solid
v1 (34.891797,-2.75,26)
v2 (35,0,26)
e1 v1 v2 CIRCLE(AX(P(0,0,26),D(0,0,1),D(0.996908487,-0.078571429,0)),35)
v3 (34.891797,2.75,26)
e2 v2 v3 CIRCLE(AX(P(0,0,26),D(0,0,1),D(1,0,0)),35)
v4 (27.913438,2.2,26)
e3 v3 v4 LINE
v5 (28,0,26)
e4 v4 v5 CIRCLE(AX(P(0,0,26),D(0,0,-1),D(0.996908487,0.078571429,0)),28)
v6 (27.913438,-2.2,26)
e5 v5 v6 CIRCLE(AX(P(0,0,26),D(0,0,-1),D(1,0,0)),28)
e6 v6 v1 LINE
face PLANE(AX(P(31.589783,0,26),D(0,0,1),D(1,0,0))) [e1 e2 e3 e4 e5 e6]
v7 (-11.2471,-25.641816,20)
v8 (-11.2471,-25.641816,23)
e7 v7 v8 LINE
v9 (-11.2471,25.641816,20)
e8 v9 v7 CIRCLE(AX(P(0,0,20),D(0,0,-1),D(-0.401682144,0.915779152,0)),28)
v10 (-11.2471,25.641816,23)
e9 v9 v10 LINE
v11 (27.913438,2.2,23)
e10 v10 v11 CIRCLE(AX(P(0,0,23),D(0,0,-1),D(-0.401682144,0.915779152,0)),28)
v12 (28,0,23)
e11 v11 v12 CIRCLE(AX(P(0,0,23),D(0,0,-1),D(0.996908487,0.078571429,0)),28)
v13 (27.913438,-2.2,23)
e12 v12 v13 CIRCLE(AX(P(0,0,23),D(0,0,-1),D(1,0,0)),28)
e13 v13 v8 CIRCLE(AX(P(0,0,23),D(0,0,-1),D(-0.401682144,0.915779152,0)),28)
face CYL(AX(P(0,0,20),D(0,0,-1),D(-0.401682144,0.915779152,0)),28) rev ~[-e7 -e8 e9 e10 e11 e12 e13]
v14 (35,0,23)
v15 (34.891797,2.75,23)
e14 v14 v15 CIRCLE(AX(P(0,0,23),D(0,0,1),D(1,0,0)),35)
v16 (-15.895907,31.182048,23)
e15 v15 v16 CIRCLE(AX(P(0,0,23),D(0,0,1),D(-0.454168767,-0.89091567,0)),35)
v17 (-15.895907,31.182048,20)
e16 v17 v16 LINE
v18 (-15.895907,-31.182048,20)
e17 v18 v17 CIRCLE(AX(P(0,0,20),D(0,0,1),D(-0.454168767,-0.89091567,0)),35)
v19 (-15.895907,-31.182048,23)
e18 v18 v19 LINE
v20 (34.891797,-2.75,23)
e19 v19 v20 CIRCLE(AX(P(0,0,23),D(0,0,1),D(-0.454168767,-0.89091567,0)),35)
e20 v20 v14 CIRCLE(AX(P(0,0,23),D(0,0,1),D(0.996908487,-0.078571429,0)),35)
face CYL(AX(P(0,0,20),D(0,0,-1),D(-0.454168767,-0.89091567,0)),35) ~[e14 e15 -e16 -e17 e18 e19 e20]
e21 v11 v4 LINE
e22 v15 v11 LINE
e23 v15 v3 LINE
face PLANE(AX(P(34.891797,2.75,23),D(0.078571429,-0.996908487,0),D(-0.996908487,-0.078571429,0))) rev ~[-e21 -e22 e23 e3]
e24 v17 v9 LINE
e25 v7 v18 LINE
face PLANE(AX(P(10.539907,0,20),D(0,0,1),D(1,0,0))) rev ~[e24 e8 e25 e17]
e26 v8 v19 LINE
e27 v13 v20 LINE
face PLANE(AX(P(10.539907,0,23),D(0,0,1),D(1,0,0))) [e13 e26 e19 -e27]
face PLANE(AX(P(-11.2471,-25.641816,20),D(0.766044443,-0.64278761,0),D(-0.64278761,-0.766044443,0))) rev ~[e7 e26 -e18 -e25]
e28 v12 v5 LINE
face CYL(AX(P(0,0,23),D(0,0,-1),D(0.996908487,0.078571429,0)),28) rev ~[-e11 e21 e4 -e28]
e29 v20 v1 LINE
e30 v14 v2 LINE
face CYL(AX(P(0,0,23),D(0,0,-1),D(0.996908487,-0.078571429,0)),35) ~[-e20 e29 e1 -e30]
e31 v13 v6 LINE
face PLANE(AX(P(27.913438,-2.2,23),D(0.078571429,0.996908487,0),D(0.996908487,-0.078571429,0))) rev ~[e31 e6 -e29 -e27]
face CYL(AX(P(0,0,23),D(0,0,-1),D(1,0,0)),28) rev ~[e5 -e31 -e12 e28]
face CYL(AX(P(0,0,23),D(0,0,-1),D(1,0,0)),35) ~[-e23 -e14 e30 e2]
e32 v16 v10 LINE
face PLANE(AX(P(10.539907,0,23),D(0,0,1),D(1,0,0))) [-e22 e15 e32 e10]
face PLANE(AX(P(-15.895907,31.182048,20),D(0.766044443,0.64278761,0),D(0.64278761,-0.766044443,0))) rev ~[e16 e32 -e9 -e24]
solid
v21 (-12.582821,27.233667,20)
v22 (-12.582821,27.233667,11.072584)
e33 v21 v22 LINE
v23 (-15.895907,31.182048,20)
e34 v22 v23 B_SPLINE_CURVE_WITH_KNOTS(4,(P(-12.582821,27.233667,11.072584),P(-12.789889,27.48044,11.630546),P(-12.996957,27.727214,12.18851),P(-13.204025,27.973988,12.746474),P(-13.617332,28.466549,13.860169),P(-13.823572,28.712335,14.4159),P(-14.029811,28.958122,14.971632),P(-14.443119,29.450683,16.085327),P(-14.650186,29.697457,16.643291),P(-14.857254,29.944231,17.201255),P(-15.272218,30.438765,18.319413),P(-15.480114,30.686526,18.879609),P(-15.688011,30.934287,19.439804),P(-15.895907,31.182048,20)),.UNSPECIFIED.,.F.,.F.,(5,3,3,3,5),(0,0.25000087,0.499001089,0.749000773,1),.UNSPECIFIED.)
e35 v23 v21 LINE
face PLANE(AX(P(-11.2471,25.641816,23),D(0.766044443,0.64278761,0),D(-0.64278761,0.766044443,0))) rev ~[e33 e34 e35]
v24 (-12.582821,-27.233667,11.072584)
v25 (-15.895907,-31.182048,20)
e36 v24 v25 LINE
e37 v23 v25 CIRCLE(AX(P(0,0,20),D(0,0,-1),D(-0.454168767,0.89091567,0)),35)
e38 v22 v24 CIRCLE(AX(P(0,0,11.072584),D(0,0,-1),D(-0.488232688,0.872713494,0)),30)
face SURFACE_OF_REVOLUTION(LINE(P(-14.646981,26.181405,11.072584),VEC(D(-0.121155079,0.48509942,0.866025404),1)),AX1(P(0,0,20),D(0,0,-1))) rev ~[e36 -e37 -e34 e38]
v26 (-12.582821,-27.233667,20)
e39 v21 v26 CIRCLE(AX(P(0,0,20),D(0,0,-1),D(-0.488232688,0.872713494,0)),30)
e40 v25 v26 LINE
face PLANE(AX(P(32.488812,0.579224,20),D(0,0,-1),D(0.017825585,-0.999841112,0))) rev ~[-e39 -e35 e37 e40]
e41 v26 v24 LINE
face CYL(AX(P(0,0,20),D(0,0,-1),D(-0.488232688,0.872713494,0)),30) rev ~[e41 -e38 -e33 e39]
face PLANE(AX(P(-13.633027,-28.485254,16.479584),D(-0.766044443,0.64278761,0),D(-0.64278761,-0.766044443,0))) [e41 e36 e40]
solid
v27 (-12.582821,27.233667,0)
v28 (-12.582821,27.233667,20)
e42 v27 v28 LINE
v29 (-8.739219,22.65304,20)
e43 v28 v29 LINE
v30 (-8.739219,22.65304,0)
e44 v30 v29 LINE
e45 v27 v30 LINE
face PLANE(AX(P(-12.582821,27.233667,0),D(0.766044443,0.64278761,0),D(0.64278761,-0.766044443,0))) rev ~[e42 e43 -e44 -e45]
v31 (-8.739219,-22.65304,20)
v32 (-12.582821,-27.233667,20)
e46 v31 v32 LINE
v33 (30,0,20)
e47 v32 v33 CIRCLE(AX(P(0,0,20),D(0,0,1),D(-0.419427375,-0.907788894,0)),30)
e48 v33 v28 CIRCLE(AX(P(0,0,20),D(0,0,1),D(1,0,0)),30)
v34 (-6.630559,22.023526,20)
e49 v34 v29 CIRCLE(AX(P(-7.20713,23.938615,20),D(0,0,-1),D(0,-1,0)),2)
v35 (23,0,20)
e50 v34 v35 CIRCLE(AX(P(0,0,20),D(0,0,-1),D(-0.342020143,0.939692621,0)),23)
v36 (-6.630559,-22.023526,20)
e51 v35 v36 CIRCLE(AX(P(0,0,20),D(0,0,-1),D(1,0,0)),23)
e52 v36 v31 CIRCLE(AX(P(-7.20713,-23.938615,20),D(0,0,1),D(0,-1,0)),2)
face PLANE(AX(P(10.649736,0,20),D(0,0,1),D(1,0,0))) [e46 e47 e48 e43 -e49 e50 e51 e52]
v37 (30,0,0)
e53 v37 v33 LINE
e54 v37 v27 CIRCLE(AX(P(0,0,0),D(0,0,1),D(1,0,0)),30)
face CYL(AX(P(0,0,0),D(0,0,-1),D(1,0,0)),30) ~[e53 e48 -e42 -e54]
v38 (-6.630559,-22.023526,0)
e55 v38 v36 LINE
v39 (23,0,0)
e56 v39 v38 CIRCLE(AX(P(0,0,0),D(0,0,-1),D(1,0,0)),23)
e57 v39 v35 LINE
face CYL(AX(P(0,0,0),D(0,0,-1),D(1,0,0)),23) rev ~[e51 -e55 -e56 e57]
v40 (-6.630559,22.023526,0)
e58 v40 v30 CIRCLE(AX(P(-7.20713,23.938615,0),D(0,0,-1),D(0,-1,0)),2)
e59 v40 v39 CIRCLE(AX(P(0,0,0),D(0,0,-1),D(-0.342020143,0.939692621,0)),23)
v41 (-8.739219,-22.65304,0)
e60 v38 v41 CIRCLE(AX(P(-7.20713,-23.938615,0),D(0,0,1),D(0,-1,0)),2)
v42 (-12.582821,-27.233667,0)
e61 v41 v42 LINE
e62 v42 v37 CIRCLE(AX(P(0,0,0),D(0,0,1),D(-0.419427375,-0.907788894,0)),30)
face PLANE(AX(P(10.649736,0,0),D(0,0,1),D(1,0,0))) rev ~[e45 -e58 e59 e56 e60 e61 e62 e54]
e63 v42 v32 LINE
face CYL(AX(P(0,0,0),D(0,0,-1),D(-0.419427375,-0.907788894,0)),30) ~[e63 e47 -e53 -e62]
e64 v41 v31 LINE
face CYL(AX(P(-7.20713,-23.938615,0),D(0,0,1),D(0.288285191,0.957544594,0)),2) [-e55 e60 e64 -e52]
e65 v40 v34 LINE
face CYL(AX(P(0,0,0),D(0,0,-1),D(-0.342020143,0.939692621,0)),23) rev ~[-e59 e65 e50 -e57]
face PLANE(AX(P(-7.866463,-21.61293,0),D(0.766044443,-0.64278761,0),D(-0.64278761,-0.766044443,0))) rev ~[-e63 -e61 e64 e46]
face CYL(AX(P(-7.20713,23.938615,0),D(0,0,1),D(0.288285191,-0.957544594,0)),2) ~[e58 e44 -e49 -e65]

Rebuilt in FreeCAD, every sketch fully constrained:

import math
import FreeCAD as App
import Part
import Sketcher
from FreeCAD import Vector
Q = App.Units.Quantity


def edges_at(feature, points):
    """Names of the edges that pass closest to the given points."""
    edges = feature.Shape.Edges
    near = lambda p: min(range(len(edges)), key=lambda i: edges[i].distToShape(Part.Vertex(*p))[0])
    return sorted({f"Edge{near(p) + 1}" for p in points})

doc = App.newDocument("Part")
body = doc.addObject("PartDesign::Body", "Body")

# Sketch on XY plane
sketch1 = body.newObject("Sketcher::SketchObject", "Sketch")
sketch1.AttachmentSupport = (doc.getObject("XY_Plane"), [""])
sketch1.MapMode = "FlatFace"
sketch1.addGeometry([
    Part.ArcOfCircle(Part.Circle(Vector(0, 0, 0), Vector(0, 0, 1), 23), math.radians(0), math.radians(110)),  # 0
    Part.ArcOfCircle(Part.Circle(Vector(0, 0, 0), Vector(0, 0, 1), 23), math.radians(-110), math.radians(0)),  # 1
    Part.LineSegment(Vector(-8, -22, 0), Vector(-13, -27, 0)),  # 2
    Part.ArcOfCircle(Part.Circle(Vector(0, 0, 0), Vector(0, 0, 1), 30), math.radians(-115), math.radians(0)),  # 3
    Part.ArcOfCircle(Part.Circle(Vector(0, 0, 0), Vector(0, 0, 1), 30), math.radians(0), math.radians(115)),  # 4
    Part.LineSegment(Vector(-13, 27, 0), Vector(-8, 22, 0)),  # 5
], False)
sketch1.addConstraint([
    Sketcher.Constraint("Tangent", 0, 1, 1, 2),
    Sketcher.Constraint("Coincident", 1, 1, 2, 1),
    Sketcher.Constraint("Coincident", 2, 2, 3, 1),
    Sketcher.Constraint("Tangent", 3, 2, 4, 1),
    Sketcher.Constraint("Coincident", 4, 2, 5, 1),
    Sketcher.Constraint("Coincident", 5, 2, 0, 2),
    Sketcher.Constraint("Coincident", 0, 3, -1, 1),
    Sketcher.Constraint("Coincident", 3, 3, -1, 1),
    Sketcher.Constraint("Equal", 0, 1),
    Sketcher.Constraint("Equal", 3, 4),
    Sketcher.Constraint("PointOnObject", 0, 1, -1),
    Sketcher.Constraint("PointOnObject", 3, 2, -1),
    Sketcher.Constraint("Vertical", 2, 2, 4, 2),
    Sketcher.Constraint("Vertical", 1, 1, 5, 2),
    Sketcher.Constraint("Radius", 0, 23.0),
    Sketcher.Constraint("Radius", 3, 30.0),
    Sketcher.Constraint("Angle", 2, Q("-130 deg")),
    Sketcher.Constraint("Distance", 2, 7.33735),
])
pad1 = body.newObject("PartDesign::Pad", "Pad")
pad1.Profile = sketch1
pad1.Length = 20
doc.recompute()

fillet = body.newObject("PartDesign::Fillet", "Fillet")
fillet.Base = (pad1, edges_at(pad1, [(-7.866, 21.613, 10)]))
fillet.Radius = 2
doc.recompute()

fillet2 = body.newObject("PartDesign::Fillet", "Fillet001")
fillet2.Base = (fillet, edges_at(fillet, [(-7.866, -21.613, 10)]))
fillet2.Radius = 2
body2 = doc.addObject("PartDesign::Body", "Body001")

# Sketch on XY plane
sketch2 = body2.newObject("Sketcher::SketchObject", "Sketch001")
sketch2.AttachmentSupport = (doc.getObject("XY_Plane001"), [""])
sketch2.MapMode = "FlatFace"
sketch2.AttachmentOffset = App.Placement(Vector(0, 0, 20), App.Rotation())
sketch2.addGeometry([
    Part.LineSegment(Vector(-16, 31, 0), Vector(-11, 26, 0)),
    Part.ArcOfCircle(Part.Circle(Vector(0, 0, 0), Vector(0, 0, 1), 28), math.radians(-114), math.radians(114)),
    Part.LineSegment(Vector(-11, -26, 0), Vector(-16, -31, 0)),
    Part.ArcOfCircle(Part.Circle(Vector(0, 0, 0), Vector(0, 0, 1), 35), math.radians(-117), math.radians(117)),
], False)
sketch2.addConstraint([
    Sketcher.Constraint("Coincident", 0, 2, 1, 2),
    Sketcher.Constraint("Coincident", 1, 1, 2, 1),
    Sketcher.Constraint("Coincident", 2, 2, 3, 1),
    Sketcher.Constraint("Coincident", 3, 2, 0, 1),
    Sketcher.Constraint("Coincident", 1, 3, -1, 1),
    Sketcher.Constraint("Coincident", 3, 3, -1, 1),
    Sketcher.Constraint("Vertical", 0, 2, 1, 1),
    Sketcher.Constraint("Vertical", 2, 2, 3, 2),
    Sketcher.Constraint("Radius", 1, 28.0),
    Sketcher.Constraint("Radius", 3, 35.0),
    Sketcher.Constraint("Angle", 0, Q("-50 deg")),
    Sketcher.Constraint("DistanceX", 0, 2, -1, 1, 11.2471),
])
pad2 = body2.newObject("PartDesign::Pad", "Pad001")
pad2.Profile = sketch2
pad2.Length = 3

# Sketch on XY plane
sketch3 = body2.newObject("Sketcher::SketchObject", "Sketch002")
sketch3.AttachmentSupport = (doc.getObject("XY_Plane001"), [""])
sketch3.MapMode = "FlatFace"
sketch3.AttachmentOffset = App.Placement(Vector(0, 0, 23), App.Rotation())
sketch3.addGeometry([
    Part.LineSegment(Vector(34.9, 2.8, 0), Vector(27.9, 2.2, 0)),  # 0
    Part.ArcOfCircle(Part.Circle(Vector(0, 0, 0), Vector(0, 0, 1), 28), math.radians(0), math.radians(4.51)),  # 1
    Part.ArcOfCircle(Part.Circle(Vector(0, 0, 0), Vector(0, 0, 1), 28), math.radians(-4.51), math.radians(0)),  # 2
    Part.LineSegment(Vector(27.9, -2.2, 0), Vector(34.9, -2.8, 0)),  # 3
    Part.ArcOfCircle(Part.Circle(Vector(0, 0, 0), Vector(0, 0, 1), 35), math.radians(-4.51), math.radians(0)),  # 4
    Part.ArcOfCircle(Part.Circle(Vector(0, 0, 0), Vector(0, 0, 1), 35), math.radians(0), math.radians(4.51)),  # 5
], False)
sketch3.addConstraint([
    Sketcher.Constraint("Coincident", 0, 2, 1, 2),
    Sketcher.Constraint("Tangent", 1, 1, 2, 2),
    Sketcher.Constraint("Coincident", 2, 1, 3, 1),
    Sketcher.Constraint("Coincident", 3, 2, 4, 1),
    Sketcher.Constraint("Tangent", 4, 2, 5, 1),
    Sketcher.Constraint("Coincident", 5, 2, 0, 1),
    Sketcher.Constraint("Coincident", 1, 3, -1, 1),
    Sketcher.Constraint("Coincident", 4, 3, -1, 1),
    Sketcher.Constraint("Equal", 1, 2),
    Sketcher.Constraint("Equal", 4, 5),
    Sketcher.Constraint("PointOnObject", 1, 1, -1),
    Sketcher.Constraint("PointOnObject", 4, 2, -1),
    Sketcher.Constraint("Vertical", 0, 2, 2, 1),
    Sketcher.Constraint("Vertical", 3, 2, 5, 2),
    Sketcher.Constraint("Radius", 1, 28.0),
    Sketcher.Constraint("Radius", 4, 35.0),
    Sketcher.Constraint("DistanceY", -1, 1, 0, 2, 2.2),
    Sketcher.Constraint("DistanceY", 3, 2, 5, 2, 5.5),
])
pad3 = body2.newObject("PartDesign::Pad", "Pad002")
pad3.Profile = sketch3
pad3.Length = 3
body3 = doc.addObject("PartDesign::Body", "Body002")

# Sketch on an angled plane
sketch4 = body3.newObject("Sketcher::SketchObject", "Sketch003")
sketch4.Placement = App.Placement(Vector(6.02606, -5.056465, 0), App.Rotation(Vector(-0.64278761, -0.766044443, 0), Vector(0, 0, 1), Vector(-0.766044443, 0.64278761, 0), "ZXY"))
sketch4.addGeometry([
    Part.LineSegment(Vector(34, 20, 0), Vector(29, 20, 0)),
    Part.LineSegment(Vector(29, 20, 0), Vector(29, 11, 0)),
    Part.LineSegment(Vector(29, 11, 0), Vector(34, 20, 0)),
], False)
sketch4.addConstraint([
    Sketcher.Constraint("Coincident", 0, 2, 1, 1),
    Sketcher.Constraint("Coincident", 1, 2, 2, 1),
    Sketcher.Constraint("Coincident", 2, 2, 0, 1),
    Sketcher.Constraint("Horizontal", 0),
    Sketcher.Constraint("Vertical", 1),
    Sketcher.Constraint("Angle", 2, Q("60 deg")),
    Sketcher.Constraint("DistanceY", -1, 1, 0, 2, 20.0),
    Sketcher.Constraint("DistanceX", 0, 2, 0, 1, 5.154246),
    Sketcher.Constraint("DistanceX", -1, 1, 0, 2, 28.950281),
])

# Sketch on XY plane
sketch5 = body3.newObject("Sketcher::SketchObject", "Sketch004")
sketch5.AttachmentSupport = (doc.getObject("XY_Plane002"), [""])
sketch5.MapMode = "FlatFace"
sketch5.AttachmentOffset = App.Placement(Vector(0, 0, 20), App.Rotation())
sketch5.addGeometry(Part.ArcOfCircle(Part.Circle(Vector(0, 0, 0), Vector(0, 0, 1), 35), math.radians(-117), math.radians(117)), False)
sketch5.addConstraint([
    Sketcher.Constraint("Coincident", 0, 3, -1, 1),
    Sketcher.Constraint("Radius", 0, 35.0),
    Sketcher.Constraint("DistanceY", 0, 1, -1, 1, 31.182048),
    Sketcher.Constraint("DistanceY", -1, 1, 0, 2, 31.182048),
])
doc.recompute()

additivepipe = body3.newObject("PartDesign::AdditivePipe", "AdditivePipe")
additivepipe.Profile = sketch4
additivepipe.Spine = (sketch5, ["Edge1"])

# Sketch on XY plane
sketch6 = body3.newObject("Sketcher::SketchObject", "Sketch005")
sketch6.AttachmentSupport = (doc.getObject("XY_Plane002"), [""])
sketch6.MapMode = "FlatFace"
sketch6.AttachmentOffset = App.Placement(Vector(0, 0, 23), App.Rotation())
sketch6.addGeometry([
    Part.LineSegment(Vector(-22, 19, 0), Vector(-11, 26, 0)),
    Part.LineSegment(Vector(-11, 26, 0), Vector(-16, 31, 0)),
    Part.LineSegment(Vector(-16, 31, 0), Vector(-26, 26, 0)),
    Part.LineSegment(Vector(-26, 26, 0), Vector(-22, 19, 0)),
], False)
sketch6.addConstraint([
    Sketcher.Constraint("Coincident", 0, 2, 1, 1),
    Sketcher.Constraint("Coincident", 1, 2, 2, 1),
    Sketcher.Constraint("Coincident", 2, 2, 3, 1),
    Sketcher.Constraint("Coincident", 3, 2, 0, 1),
    Sketcher.Constraint("Angle", 1, Q("130 deg")),
    Sketcher.Constraint("DistanceX", 0, 2, -1, 1, 11.2471),
    Sketcher.Constraint("Distance", 1, 7.23226),
    Sketcher.Constraint("Distance", 3, 7.90831),
    Sketcher.Constraint("DistanceY", -1, 1, 1, 2, 31.182048),
    Sketcher.Constraint("DistanceY", -1, 1, 2, 2, 26.036441),
    Sketcher.Constraint("DistanceX", 2, 2, 1, 2, 10.093831),
    Sketcher.Constraint("DistanceX", 2, 2, 3, 2, 4.244961),
])
pocket1 = body3.newObject("PartDesign::Pocket", "Pocket")
pocket1.Profile = sketch6
pocket1.Length = 25

doc.recompute()
